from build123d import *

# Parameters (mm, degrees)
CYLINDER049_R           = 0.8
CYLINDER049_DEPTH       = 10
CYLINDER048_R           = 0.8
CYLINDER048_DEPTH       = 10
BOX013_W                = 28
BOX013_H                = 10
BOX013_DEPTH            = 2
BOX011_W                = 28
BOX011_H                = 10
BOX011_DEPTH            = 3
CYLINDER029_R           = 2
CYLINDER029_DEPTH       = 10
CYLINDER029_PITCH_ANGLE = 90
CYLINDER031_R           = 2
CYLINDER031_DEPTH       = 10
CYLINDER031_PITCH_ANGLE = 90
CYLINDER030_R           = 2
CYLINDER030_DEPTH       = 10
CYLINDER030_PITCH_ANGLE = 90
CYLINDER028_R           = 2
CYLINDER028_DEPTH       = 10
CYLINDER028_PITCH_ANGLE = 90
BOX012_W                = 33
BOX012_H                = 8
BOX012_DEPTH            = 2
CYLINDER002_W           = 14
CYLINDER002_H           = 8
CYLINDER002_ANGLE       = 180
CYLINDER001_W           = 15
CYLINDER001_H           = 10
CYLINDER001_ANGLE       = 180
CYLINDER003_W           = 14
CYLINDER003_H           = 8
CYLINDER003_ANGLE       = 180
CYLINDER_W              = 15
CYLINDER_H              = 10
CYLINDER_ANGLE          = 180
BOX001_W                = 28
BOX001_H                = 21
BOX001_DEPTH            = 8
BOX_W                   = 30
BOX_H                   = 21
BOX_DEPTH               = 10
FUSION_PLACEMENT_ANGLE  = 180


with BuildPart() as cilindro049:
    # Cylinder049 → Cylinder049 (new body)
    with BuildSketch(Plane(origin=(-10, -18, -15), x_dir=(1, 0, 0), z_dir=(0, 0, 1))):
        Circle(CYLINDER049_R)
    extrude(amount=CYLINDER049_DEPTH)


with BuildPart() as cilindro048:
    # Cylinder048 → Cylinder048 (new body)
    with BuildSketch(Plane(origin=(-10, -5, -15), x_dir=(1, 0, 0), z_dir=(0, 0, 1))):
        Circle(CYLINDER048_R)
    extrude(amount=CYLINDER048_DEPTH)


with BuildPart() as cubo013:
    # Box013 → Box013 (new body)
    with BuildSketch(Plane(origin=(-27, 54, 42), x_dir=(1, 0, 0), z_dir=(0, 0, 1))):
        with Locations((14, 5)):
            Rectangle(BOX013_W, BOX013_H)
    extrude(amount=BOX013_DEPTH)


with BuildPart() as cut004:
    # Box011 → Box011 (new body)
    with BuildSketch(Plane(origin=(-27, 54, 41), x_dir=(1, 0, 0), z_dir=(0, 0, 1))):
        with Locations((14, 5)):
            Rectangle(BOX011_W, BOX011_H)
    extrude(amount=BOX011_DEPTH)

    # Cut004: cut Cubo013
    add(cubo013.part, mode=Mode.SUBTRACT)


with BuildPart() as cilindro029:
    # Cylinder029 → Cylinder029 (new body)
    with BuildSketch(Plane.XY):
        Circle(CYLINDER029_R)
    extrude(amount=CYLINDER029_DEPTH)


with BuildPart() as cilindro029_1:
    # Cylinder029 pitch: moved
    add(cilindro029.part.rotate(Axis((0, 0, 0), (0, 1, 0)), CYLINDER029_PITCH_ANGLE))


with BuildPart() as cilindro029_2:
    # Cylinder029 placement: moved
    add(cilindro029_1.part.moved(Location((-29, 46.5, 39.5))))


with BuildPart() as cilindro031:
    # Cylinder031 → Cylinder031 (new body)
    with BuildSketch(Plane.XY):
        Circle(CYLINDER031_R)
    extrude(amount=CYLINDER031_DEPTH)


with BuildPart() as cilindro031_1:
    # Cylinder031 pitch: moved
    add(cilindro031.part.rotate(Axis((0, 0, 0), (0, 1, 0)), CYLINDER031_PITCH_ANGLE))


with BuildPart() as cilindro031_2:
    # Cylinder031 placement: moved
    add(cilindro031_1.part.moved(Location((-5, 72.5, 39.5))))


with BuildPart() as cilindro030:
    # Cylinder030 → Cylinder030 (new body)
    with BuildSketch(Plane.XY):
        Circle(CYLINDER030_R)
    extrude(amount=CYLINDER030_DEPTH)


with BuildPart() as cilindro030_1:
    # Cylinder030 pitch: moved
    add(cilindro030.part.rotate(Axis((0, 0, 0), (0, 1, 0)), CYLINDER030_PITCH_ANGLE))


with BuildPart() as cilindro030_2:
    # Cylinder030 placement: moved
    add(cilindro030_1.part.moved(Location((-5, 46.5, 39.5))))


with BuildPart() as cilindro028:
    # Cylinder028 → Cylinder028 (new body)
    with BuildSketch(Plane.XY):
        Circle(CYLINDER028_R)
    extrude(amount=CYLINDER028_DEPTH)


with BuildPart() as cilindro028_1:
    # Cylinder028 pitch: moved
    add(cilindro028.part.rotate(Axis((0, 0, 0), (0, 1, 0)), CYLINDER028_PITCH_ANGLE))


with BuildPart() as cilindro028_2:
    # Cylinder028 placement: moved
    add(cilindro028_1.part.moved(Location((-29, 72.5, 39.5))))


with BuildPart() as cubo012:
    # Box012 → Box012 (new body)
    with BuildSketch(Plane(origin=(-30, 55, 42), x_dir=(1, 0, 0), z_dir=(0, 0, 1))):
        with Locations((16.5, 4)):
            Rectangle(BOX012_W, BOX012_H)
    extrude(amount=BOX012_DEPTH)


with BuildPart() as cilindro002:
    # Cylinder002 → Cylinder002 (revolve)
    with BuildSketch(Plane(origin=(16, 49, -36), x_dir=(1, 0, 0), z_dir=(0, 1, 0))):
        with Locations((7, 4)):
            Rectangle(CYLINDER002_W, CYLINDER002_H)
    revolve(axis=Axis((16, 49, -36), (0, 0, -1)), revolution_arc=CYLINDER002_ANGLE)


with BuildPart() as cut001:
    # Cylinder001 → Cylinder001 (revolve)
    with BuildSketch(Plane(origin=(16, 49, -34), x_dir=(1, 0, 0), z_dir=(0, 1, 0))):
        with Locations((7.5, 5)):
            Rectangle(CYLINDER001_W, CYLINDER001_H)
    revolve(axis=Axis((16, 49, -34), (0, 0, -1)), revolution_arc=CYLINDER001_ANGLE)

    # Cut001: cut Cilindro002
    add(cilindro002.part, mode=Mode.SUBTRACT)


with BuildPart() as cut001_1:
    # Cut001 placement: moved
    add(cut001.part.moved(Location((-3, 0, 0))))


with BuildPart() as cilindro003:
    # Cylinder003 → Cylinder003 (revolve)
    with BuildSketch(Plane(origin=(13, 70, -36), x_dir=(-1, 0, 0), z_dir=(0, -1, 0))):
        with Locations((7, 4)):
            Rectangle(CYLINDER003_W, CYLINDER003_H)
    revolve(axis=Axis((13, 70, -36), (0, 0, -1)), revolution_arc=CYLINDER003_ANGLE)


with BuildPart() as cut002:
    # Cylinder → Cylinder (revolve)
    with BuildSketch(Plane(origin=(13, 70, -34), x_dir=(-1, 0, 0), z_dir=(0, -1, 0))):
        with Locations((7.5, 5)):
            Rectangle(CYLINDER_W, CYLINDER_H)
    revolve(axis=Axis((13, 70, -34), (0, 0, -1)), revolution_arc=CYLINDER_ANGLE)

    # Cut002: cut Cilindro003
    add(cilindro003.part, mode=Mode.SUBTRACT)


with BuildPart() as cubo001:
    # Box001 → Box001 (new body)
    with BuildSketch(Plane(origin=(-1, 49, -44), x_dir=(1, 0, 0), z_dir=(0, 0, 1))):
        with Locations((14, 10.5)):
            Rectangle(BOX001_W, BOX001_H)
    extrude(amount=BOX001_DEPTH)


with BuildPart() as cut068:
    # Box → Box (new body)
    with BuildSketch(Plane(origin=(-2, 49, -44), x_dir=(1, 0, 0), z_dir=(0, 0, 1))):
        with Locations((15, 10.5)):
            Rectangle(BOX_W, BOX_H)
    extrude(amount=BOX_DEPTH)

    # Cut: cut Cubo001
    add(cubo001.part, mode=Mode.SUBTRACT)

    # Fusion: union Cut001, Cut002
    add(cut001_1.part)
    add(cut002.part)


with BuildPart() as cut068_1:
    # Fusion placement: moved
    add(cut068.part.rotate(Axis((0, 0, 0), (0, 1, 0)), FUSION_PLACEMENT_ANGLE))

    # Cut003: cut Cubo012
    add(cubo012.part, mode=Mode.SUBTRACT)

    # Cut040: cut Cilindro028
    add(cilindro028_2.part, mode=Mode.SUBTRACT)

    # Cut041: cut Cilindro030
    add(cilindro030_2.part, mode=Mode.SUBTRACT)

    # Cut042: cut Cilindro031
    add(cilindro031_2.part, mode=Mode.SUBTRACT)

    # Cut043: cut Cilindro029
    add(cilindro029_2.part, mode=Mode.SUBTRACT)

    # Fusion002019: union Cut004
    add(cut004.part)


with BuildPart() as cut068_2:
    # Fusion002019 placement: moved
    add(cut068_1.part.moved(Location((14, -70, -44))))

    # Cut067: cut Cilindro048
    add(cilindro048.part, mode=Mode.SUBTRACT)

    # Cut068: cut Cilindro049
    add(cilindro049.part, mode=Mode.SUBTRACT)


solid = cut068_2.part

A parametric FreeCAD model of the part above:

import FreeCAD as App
import Part
import Sketcher
Q = App.Units.Quantity


def add_polygon(sketch, points):
    """Adds a closed chain of lines whose ends are joined by coincident constraints."""
    first, n = sketch.GeometryCount, len(points)
    for a, b in zip(points, points[1:] + points[:1]):
        sketch.addGeometry(Part.LineSegment(App.Vector(*a, 0), App.Vector(*b, 0)), False)
    for i in range(n):
        sketch.addConstraint(Sketcher.Constraint("Coincident", first + i, 2, first + (i + 1) % n, 1))

doc = App.newDocument("Part")
params = doc.addObject("Spreadsheet::Sheet", "Params")
for row, (alias, value) in enumerate([
    ("sketch1_diameter", "1.6 mm"),
    ("pad1_length", "10 mm"),
    ("sketch2_diameter", "1.6 mm"),
    ("pad2_length", "10 mm"),
    ("sketch3_width", "28 mm"),
    ("sketch3_height", "10 mm"),
    ("pad3_length", "2 mm"),
    ("sketch4_width", "28 mm"),
    ("sketch4_height", "10 mm"),
    ("pad4_length", "3 mm"),
    ("sketch5_diameter", "4 mm"),
    ("pad5_length", "10 mm"),
    ("sketch6_diameter", "4 mm"),
    ("pad6_length", "10 mm"),
    ("sketch7_diameter", "4 mm"),
    ("pad7_length", "10 mm"),
    ("sketch8_diameter", "4 mm"),
    ("pad8_length", "10 mm"),
    ("sketch9_width", "33 mm"),
    ("sketch9_height", "8 mm"),
    ("pad9_length", "2 mm"),
    ("sketch10_width", "14 mm"),
    ("sketch10_height", "8 mm"),
    ("revolution_angle", "180 deg"),
    ("sketch11_width", "15 mm"),
    ("sketch11_height", "10 mm"),
    ("revolution2_angle", "180 deg"),
    ("sketch12_width", "14 mm"),
    ("sketch12_height", "8 mm"),
    ("revolution3_angle", "180 deg"),
    ("sketch13_width", "15 mm"),
    ("sketch13_height", "10 mm"),
    ("revolution4_angle", "180 deg"),
    ("sketch14_width", "28 mm"),
    ("sketch14_height", "21 mm"),
    ("pad10_length", "8 mm"),
    ("sketch15_width", "30 mm"),
    ("sketch15_height", "21 mm"),
    ("pad11_length", "10 mm"),
], start=1):
    params.set(f"A{row}", alias)
    params.set(f"B{row}", "=" + value)
    params.setAlias(f"B{row}", alias)

body = doc.addObject("PartDesign::Body", "Body")

# Sketch on XY plane
sketch1 = doc.addObject("Sketcher::SketchObject", "Sketch")
body.addObject(sketch1)
sketch1.AttachmentSupport = (doc.XY_Plane, [""])
sketch1.MapMode = "FlatFace"
sketch1.AttachmentOffset = App.Placement(App.Vector(0, 0, -15), App.Rotation())
sketch1.addGeometry(Part.Circle(App.Vector(-10, -18, 0), App.Vector(0, 0, 1), 0.8), False)
sketch1.addConstraint([
    Sketcher.Constraint("Diameter", 0, Q("1.6 mm")),
    Sketcher.Constraint("DistanceX", 0, 3, -1, 1, Q("10 mm")),
    Sketcher.Constraint("DistanceY", 0, 3, -1, 1, Q("18 mm")),
])
sketch1.setExpression("Constraints[0]", "Params.sketch1_diameter")
pad1 = doc.addObject("PartDesign::Pad", "Pad")
body.addObject(pad1)
pad1.Profile = sketch1
pad1.setExpression("Length", "Params.pad1_length")
body2 = doc.addObject("PartDesign::Body", "Body001")

# Sketch on XY plane
sketch2 = doc.addObject("Sketcher::SketchObject", "Sketch001")
body2.addObject(sketch2)
sketch2.AttachmentSupport = (doc.getObject("XY_Plane001"), [""])
sketch2.MapMode = "FlatFace"
sketch2.AttachmentOffset = App.Placement(App.Vector(0, 0, -15), App.Rotation())
sketch2.addGeometry(Part.Circle(App.Vector(-10, -5, 0), App.Vector(0, 0, 1), 0.8), False)
sketch2.addConstraint([
    Sketcher.Constraint("Diameter", 0, Q("1.6 mm")),
    Sketcher.Constraint("DistanceX", 0, 3, -1, 1, Q("10 mm")),
    Sketcher.Constraint("DistanceY", 0, 3, -1, 1, Q("5 mm")),
])
sketch2.setExpression("Constraints[0]", "Params.sketch2_diameter")
pad2 = doc.addObject("PartDesign::Pad", "Pad001")
body2.addObject(pad2)
pad2.Profile = sketch2
pad2.setExpression("Length", "Params.pad2_length")
body3 = doc.addObject("PartDesign::Body", "Body002")

# Sketch on XY plane
sketch3 = doc.addObject("Sketcher::SketchObject", "Sketch002")
body3.addObject(sketch3)
sketch3.AttachmentSupport = (doc.getObject("XY_Plane002"), [""])
sketch3.MapMode = "FlatFace"
sketch3.AttachmentOffset = App.Placement(App.Vector(0, 0, 42), App.Rotation())
add_polygon(sketch3, [(-27, 64), (-27, 54), (1, 54), (1, 64)])  # lines 0-3
sketch3.addConstraint([
    Sketcher.Constraint("Vertical", 0),
    Sketcher.Constraint("Horizontal", 1),
    Sketcher.Constraint("Vertical", 2),
    Sketcher.Constraint("Horizontal", 3),
    Sketcher.Constraint("DistanceX", 1, 1, 1, 2, Q("28 mm")),
    Sketcher.Constraint("DistanceY", 0, 2, 0, 1, Q("10 mm")),
    Sketcher.Constraint("DistanceX", 0, 2, -1, 1, Q("27 mm")),
    Sketcher.Constraint("DistanceY", -1, 1, 0, 2, Q("54 mm")),
])
sketch3.setExpression("Constraints[8]", "Params.sketch3_width")
sketch3.setExpression("Constraints[9]", "Params.sketch3_height")
pad3 = doc.addObject("PartDesign::Pad", "Pad002")
body3.addObject(pad3)
pad3.Profile = sketch3
pad3.setExpression("Length", "Params.pad3_length")
body4 = doc.addObject("PartDesign::Body", "Body003")

# Sketch on XY plane
sketch4 = doc.addObject("Sketcher::SketchObject", "Sketch003")
body4.addObject(sketch4)
sketch4.AttachmentSupport = (doc.getObject("XY_Plane003"), [""])
sketch4.MapMode = "FlatFace"
sketch4.AttachmentOffset = App.Placement(App.Vector(0, 0, 41), App.Rotation())
add_polygon(sketch4, [(-27, 64), (-27, 54), (1, 54), (1, 64)])  # lines 0-3
sketch4.addConstraint([
    Sketcher.Constraint("Vertical", 0),
    Sketcher.Constraint("Horizontal", 1),
    Sketcher.Constraint("Vertical", 2),
    Sketcher.Constraint("Horizontal", 3),
    Sketcher.Constraint("DistanceX", 1, 1, 1, 2, Q("28 mm")),
    Sketcher.Constraint("DistanceY", 0, 2, 0, 1, Q("10 mm")),
    Sketcher.Constraint("DistanceX", 0, 2, -1, 1, Q("27 mm")),
    Sketcher.Constraint("DistanceY", -1, 1, 0, 2, Q("54 mm")),
])
sketch4.setExpression("Constraints[8]", "Params.sketch4_width")
sketch4.setExpression("Constraints[9]", "Params.sketch4_height")
pad4 = doc.addObject("PartDesign::Pad", "Pad003")
body4.addObject(pad4)
pad4.Profile = sketch4
pad4.setExpression("Length", "Params.pad4_length")
doc.recompute()

boolean = doc.addObject("PartDesign::Boolean", "Boolean")
body4.addObject(boolean)
boolean.Type = "Cut"
boolean.addObjects([body3])
body5 = doc.addObject("PartDesign::Body", "Body004")

# Sketch on XY plane
sketch5 = doc.addObject("Sketcher::SketchObject", "Sketch004")
body5.addObject(sketch5)
sketch5.AttachmentSupport = (doc.getObject("XY_Plane004"), [""])
sketch5.MapMode = "FlatFace"
sketch5.addGeometry(Part.Circle(App.Vector(0, 0, 0), App.Vector(0, 0, 1), 2), False)
sketch5.addConstraint([
    Sketcher.Constraint("Coincident", 0, 3, -1, 1),
    Sketcher.Constraint("Diameter", 0, Q("4 mm")),
])
sketch5.setExpression("Constraints[1]", "Params.sketch5_diameter")
pad5 = doc.addObject("PartDesign::Pad", "Pad004")
body5.addObject(pad5)
pad5.Profile = sketch5
pad5.setExpression("Length", "Params.pad5_length")
body6 = doc.addObject("PartDesign::Body", "Body005")
doc.recompute()

body5.Placement = App.Placement(App.Vector(0, 0, 0), App.Rotation(App.Vector(0, 1, 0), 90))
boolean2 = doc.addObject("PartDesign::Boolean", "Boolean001")
body6.addObject(boolean2)
boolean2.Type = "Fuse"
boolean2.addObjects([body5])
body7 = doc.addObject("PartDesign::Body", "Body006")
doc.recompute()

body6.Placement = App.Placement(App.Vector(-29, 46.5, 39.5), App.Rotation(App.Vector(0, 0, 1), 0))
boolean3 = doc.addObject("PartDesign::Boolean", "Boolean002")
body7.addObject(boolean3)
boolean3.Type = "Fuse"
boolean3.addObjects([body6])
body8 = doc.addObject("PartDesign::Body", "Body007")

# Sketch on XY plane
sketch6 = doc.addObject("Sketcher::SketchObject", "Sketch005")
body8.addObject(sketch6)
sketch6.AttachmentSupport = (doc.getObject("XY_Plane007"), [""])
sketch6.MapMode = "FlatFace"
sketch6.addGeometry(Part.Circle(App.Vector(0, 0, 0), App.Vector(0, 0, 1), 2), False)
sketch6.addConstraint([
    Sketcher.Constraint("Coincident", 0, 3, -1, 1),
    Sketcher.Constraint("Diameter", 0, Q("4 mm")),
])
sketch6.setExpression("Constraints[1]", "Params.sketch6_diameter")
pad6 = doc.addObject("PartDesign::Pad", "Pad005")
body8.addObject(pad6)
pad6.Profile = sketch6
pad6.setExpression("Length", "Params.pad6_length")
body9 = doc.addObject("PartDesign::Body", "Body008")
doc.recompute()

body8.Placement = App.Placement(App.Vector(0, 0, 0), App.Rotation(App.Vector(0, 1, 0), 90))
boolean4 = doc.addObject("PartDesign::Boolean", "Boolean003")
body9.addObject(boolean4)
boolean4.Type = "Fuse"
boolean4.addObjects([body8])
body10 = doc.addObject("PartDesign::Body", "Body009")
doc.recompute()

body9.Placement = App.Placement(App.Vector(-5, 72.5, 39.5), App.Rotation(App.Vector(0, 0, 1), 0))
boolean5 = doc.addObject("PartDesign::Boolean", "Boolean004")
body10.addObject(boolean5)
boolean5.Type = "Fuse"
boolean5.addObjects([body9])
body11 = doc.addObject("PartDesign::Body", "Body010")

# Sketch on XY plane
sketch7 = doc.addObject("Sketcher::SketchObject", "Sketch006")
body11.addObject(sketch7)
sketch7.AttachmentSupport = (doc.getObject("XY_Plane010"), [""])
sketch7.MapMode = "FlatFace"
sketch7.addGeometry(Part.Circle(App.Vector(0, 0, 0), App.Vector(0, 0, 1), 2), False)
sketch7.addConstraint([
    Sketcher.Constraint("Coincident", 0, 3, -1, 1),
    Sketcher.Constraint("Diameter", 0, Q("4 mm")),
])
sketch7.setExpression("Constraints[1]", "Params.sketch7_diameter")
pad7 = doc.addObject("PartDesign::Pad", "Pad006")
body11.addObject(pad7)
pad7.Profile = sketch7
pad7.setExpression("Length", "Params.pad7_length")
body12 = doc.addObject("PartDesign::Body", "Body011")
doc.recompute()

body11.Placement = App.Placement(App.Vector(0, 0, 0), App.Rotation(App.Vector(0, 1, 0), 90))
boolean6 = doc.addObject("PartDesign::Boolean", "Boolean005")
body12.addObject(boolean6)
boolean6.Type = "Fuse"
boolean6.addObjects([body11])
body13 = doc.addObject("PartDesign::Body", "Body012")
doc.recompute()

body12.Placement = App.Placement(App.Vector(-5, 46.5, 39.5), App.Rotation(App.Vector(0, 0, 1), 0))
boolean7 = doc.addObject("PartDesign::Boolean", "Boolean006")
body13.addObject(boolean7)
boolean7.Type = "Fuse"
boolean7.addObjects([body12])
body14 = doc.addObject("PartDesign::Body", "Body013")

# Sketch on XY plane
sketch8 = doc.addObject("Sketcher::SketchObject", "Sketch007")
body14.addObject(sketch8)
sketch8.AttachmentSupport = (doc.getObject("XY_Plane013"), [""])
sketch8.MapMode = "FlatFace"
sketch8.addGeometry(Part.Circle(App.Vector(0, 0, 0), App.Vector(0, 0, 1), 2), False)
sketch8.addConstraint([
    Sketcher.Constraint("Coincident", 0, 3, -1, 1),
    Sketcher.Constraint("Diameter", 0, Q("4 mm")),
])
sketch8.setExpression("Constraints[1]", "Params.sketch8_diameter")
pad8 = doc.addObject("PartDesign::Pad", "Pad007")
body14.addObject(pad8)
pad8.Profile = sketch8
pad8.setExpression("Length", "Params.pad8_length")
body15 = doc.addObject("PartDesign::Body", "Body014")
doc.recompute()

body14.Placement = App.Placement(App.Vector(0, 0, 0), App.Rotation(App.Vector(0, 1, 0), 90))
boolean8 = doc.addObject("PartDesign::Boolean", "Boolean007")
body15.addObject(boolean8)
boolean8.Type = "Fuse"
boolean8.addObjects([body14])
body16 = doc.addObject("PartDesign::Body", "Body015")
doc.recompute()

body15.Placement = App.Placement(App.Vector(-29, 72.5, 39.5), App.Rotation(App.Vector(0, 0, 1), 0))
boolean9 = doc.addObject("PartDesign::Boolean", "Boolean008")
body16.addObject(boolean9)
boolean9.Type = "Fuse"
boolean9.addObjects([body15])
body17 = doc.addObject("PartDesign::Body", "Body016")

# Sketch on XY plane
sketch9 = doc.addObject("Sketcher::SketchObject", "Sketch008")
body17.addObject(sketch9)
sketch9.AttachmentSupport = (doc.getObject("XY_Plane016"), [""])
sketch9.MapMode = "FlatFace"
sketch9.AttachmentOffset = App.Placement(App.Vector(0, 0, 42), App.Rotation())
add_polygon(sketch9, [(-30, 63), (-30, 55), (3, 55), (3, 63)])  # lines 0-3
sketch9.addConstraint([
    Sketcher.Constraint("Vertical", 0),
    Sketcher.Constraint("Horizontal", 1),
    Sketcher.Constraint("Vertical", 2),
    Sketcher.Constraint("Horizontal", 3),
    Sketcher.Constraint("DistanceX", 1, 1, 1, 2, Q("33 mm")),
    Sketcher.Constraint("DistanceY", 0, 2, 0, 1, Q("8 mm")),
    Sketcher.Constraint("DistanceX", 0, 2, -1, 1, Q("30 mm")),
    Sketcher.Constraint("DistanceY", -1, 1, 0, 2, Q("55 mm")),
])
sketch9.setExpression("Constraints[8]", "Params.sketch9_width")
sketch9.setExpression("Constraints[9]", "Params.sketch9_height")
pad9 = doc.addObject("PartDesign::Pad", "Pad008")
body17.addObject(pad9)
pad9.Profile = sketch9
pad9.setExpression("Length", "Params.pad9_length")
body18 = doc.addObject("PartDesign::Body", "Body017")

# Sketch on XZ plane
sketch10 = doc.addObject("Sketcher::SketchObject", "Sketch009")
body18.addObject(sketch10)
sketch10.AttachmentSupport = (doc.getObject("XZ_Plane017"), [""])
sketch10.MapMode = "FlatFace"
sketch10.AttachmentOffset = App.Placement(App.Vector(0, 0, -49), App.Rotation())
add_polygon(sketch10, [(16, -44), (16, -36), (30, -36), (30, -44)])  # lines 0-3
sketch10.addGeometry(Part.LineSegment(App.Vector(16, -36, 0), App.Vector(16, -44, 0)), True)  # axis
sketch10.addConstraint([
    Sketcher.Constraint("Vertical", 0),
    Sketcher.Constraint("Horizontal", 1),
    Sketcher.Constraint("Vertical", 2),
    Sketcher.Constraint("Horizontal", 3),
    Sketcher.Constraint("Vertical", 4),
    Sketcher.Constraint("Coincident", 4, 1, 0, 2),
    Sketcher.Constraint("Horizontal", 2, 2, 4, 2),
    Sketcher.Constraint("DistanceX", 1, 1, 1, 2, Q("14 mm")),
    Sketcher.Constraint("DistanceY", 0, 1, 0, 2, Q("8 mm")),
    Sketcher.Constraint("DistanceX", -1, 1, 0, 2, Q("16 mm")),
    Sketcher.Constraint("DistanceY", 0, 2, -1, 1, Q("36 mm")),
])
sketch10.setExpression("Constraints[11]", "Params.sketch10_width")
sketch10.setExpression("Constraints[12]", "Params.sketch10_height")
revolution = doc.addObject("PartDesign::Revolution", "Revolution")
body18.addObject(revolution)
revolution.Profile = sketch10
revolution.ReferenceAxis = (sketch10, ["Axis0"])
revolution.setExpression("Angle", "Params.revolution_angle")
body19 = doc.addObject("PartDesign::Body", "Body018")

# Sketch on XZ plane
sketch11 = doc.addObject("Sketcher::SketchObject", "Sketch010")
body19.addObject(sketch11)
sketch11.AttachmentSupport = (doc.getObject("XZ_Plane018"), [""])
sketch11.MapMode = "FlatFace"
sketch11.AttachmentOffset = App.Placement(App.Vector(0, 0, -49), App.Rotation())
add_polygon(sketch11, [(16, -44), (16, -34), (31, -34), (31, -44)])  # lines 0-3
sketch11.addGeometry(Part.LineSegment(App.Vector(16, -34, 0), App.Vector(16, -44, 0)), True)  # axis
sketch11.addConstraint([
    Sketcher.Constraint("Vertical", 0),
    Sketcher.Constraint("Horizontal", 1),
    Sketcher.Constraint("Vertical", 2),
    Sketcher.Constraint("Horizontal", 3),
    Sketcher.Constraint("Vertical", 4),
    Sketcher.Constraint("Coincident", 4, 1, 0, 2),
    Sketcher.Constraint("Horizontal", 2, 2, 4, 2),
    Sketcher.Constraint("DistanceX", 1, 1, 1, 2, Q("15 mm")),
    Sketcher.Constraint("DistanceY", 0, 1, 0, 2, Q("10 mm")),
    Sketcher.Constraint("DistanceX", -1, 1, 0, 2, Q("16 mm")),
    Sketcher.Constraint("DistanceY", 0, 2, -1, 1, Q("34 mm")),
])
sketch11.setExpression("Constraints[11]", "Params.sketch11_width")
sketch11.setExpression("Constraints[12]", "Params.sketch11_height")
revolution2 = doc.addObject("PartDesign::Revolution", "Revolution001")
body19.addObject(revolution2)
revolution2.Profile = sketch11
revolution2.ReferenceAxis = (sketch11, ["Axis0"])
revolution2.setExpression("Angle", "Params.revolution2_angle")
doc.recompute()

boolean10 = doc.addObject("PartDesign::Boolean", "Boolean009")
body19.addObject(boolean10)
boolean10.Type = "Cut"
boolean10.addObjects([body18])
body20 = doc.addObject("PartDesign::Body", "Body019")
doc.recompute()

body19.Placement = App.Placement(App.Vector(-3, 0, 0), App.Rotation(App.Vector(0, 0, 1), 0))
boolean11 = doc.addObject("PartDesign::Boolean", "Boolean010")
body20.addObject(boolean11)
boolean11.Type = "Fuse"
boolean11.addObjects([body19])
body21 = doc.addObject("PartDesign::Body", "Body020")

# Sketch on XZ plane
sketch12 = doc.addObject("Sketcher::SketchObject", "Sketch011")
body21.addObject(sketch12)
sketch12.AttachmentSupport = (doc.getObject("XZ_Plane020"), [""])
sketch12.MapMode = "FlatFace"
sketch12.AttachmentOffset = App.Placement(App.Vector(0, 0, -70), App.Rotation())
add_polygon(sketch12, [(13, -44), (13, -36), (-1, -36), (-1, -44)])  # lines 0-3
sketch12.addGeometry(Part.LineSegment(App.Vector(13, -36, 0), App.Vector(13, -44, 0)), True)  # axis
sketch12.addConstraint([
    Sketcher.Constraint("Vertical", 0),
    Sketcher.Constraint("Horizontal", 1),
    Sketcher.Constraint("Vertical", 2),
    Sketcher.Constraint("Horizontal", 3),
    Sketcher.Constraint("Vertical", 4),
    Sketcher.Constraint("Coincident", 4, 1, 0, 2),
    Sketcher.Constraint("Horizontal", 2, 2, 4, 2),
    Sketcher.Constraint("DistanceX", 1, 2, 1, 1, Q("14 mm")),
    Sketcher.Constraint("DistanceY", 0, 1, 0, 2, Q("8 mm")),
    Sketcher.Constraint("DistanceX", -1, 1, 0, 2, Q("13 mm")),
    Sketcher.Constraint("DistanceY", 0, 2, -1, 1, Q("36 mm")),
])
sketch12.setExpression("Constraints[11]", "Params.sketch12_width")
sketch12.setExpression("Constraints[12]", "Params.sketch12_height")
revolution3 = doc.addObject("PartDesign::Revolution", "Revolution002")
body21.addObject(revolution3)
revolution3.Profile = sketch12
revolution3.ReferenceAxis = (sketch12, ["Axis0"])
revolution3.setExpression("Angle", "Params.revolution3_angle")
body22 = doc.addObject("PartDesign::Body", "Body021")

# Sketch on XZ plane
sketch13 = doc.addObject("Sketcher::SketchObject", "Sketch012")
body22.addObject(sketch13)
sketch13.AttachmentSupport = (doc.getObject("XZ_Plane021"), [""])
sketch13.MapMode = "FlatFace"
sketch13.AttachmentOffset = App.Placement(App.Vector(0, 0, -70), App.Rotation())
add_polygon(sketch13, [(13, -44), (13, -34), (-2, -34), (-2, -44)])  # lines 0-3
sketch13.addGeometry(Part.LineSegment(App.Vector(13, -34, 0), App.Vector(13, -44, 0)), True)  # axis
sketch13.addConstraint([
    Sketcher.Constraint("Vertical", 0),
    Sketcher.Constraint("Horizontal", 1),
    Sketcher.Constraint("Vertical", 2),
    Sketcher.Constraint("Horizontal", 3),
    Sketcher.Constraint("Vertical", 4),
    Sketcher.Constraint("Coincident", 4, 1, 0, 2),
    Sketcher.Constraint("Horizontal", 2, 2, 4, 2),
    Sketcher.Constraint("DistanceX", 1, 2, 1, 1, Q("15 mm")),
    Sketcher.Constraint("DistanceY", 0, 1, 0, 2, Q("10 mm")),
    Sketcher.Constraint("DistanceX", -1, 1, 0, 2, Q("13 mm")),
    Sketcher.Constraint("DistanceY", 0, 2, -1, 1, Q("34 mm")),
])
sketch13.setExpression("Constraints[11]", "Params.sketch13_width")
sketch13.setExpression("Constraints[12]", "Params.sketch13_height")
revolution4 = doc.addObject("PartDesign::Revolution", "Revolution003")
body22.addObject(revolution4)
revolution4.Profile = sketch13
revolution4.ReferenceAxis = (sketch13, ["Axis0"])
revolution4.setExpression("Angle", "Params.revolution4_angle")
doc.recompute()

boolean12 = doc.addObject("PartDesign::Boolean", "Boolean011")
body22.addObject(boolean12)
boolean12.Type = "Cut"
boolean12.addObjects([body21])
body23 = doc.addObject("PartDesign::Body", "Body022")

# Sketch on XY plane
sketch14 = doc.addObject("Sketcher::SketchObject", "Sketch013")
body23.addObject(sketch14)
sketch14.AttachmentSupport = (doc.getObject("XY_Plane022"), [""])
sketch14.MapMode = "FlatFace"
sketch14.AttachmentOffset = App.Placement(App.Vector(0, 0, -44), App.Rotation())
add_polygon(sketch14, [(-1, 70), (-1, 49), (27, 49), (27, 70)])  # lines 0-3
sketch14.addConstraint([
    Sketcher.Constraint("Vertical", 0),
    Sketcher.Constraint("Horizontal", 1),
    Sketcher.Constraint("Vertical", 2),
    Sketcher.Constraint("Horizontal", 3),
    Sketcher.Constraint("DistanceX", 1, 1, 1, 2, Q("28 mm")),
    Sketcher.Constraint("DistanceY", 0, 2, 0, 1, Q("21 mm")),
    Sketcher.Constraint("DistanceX", 0, 2, -1, 1, Q("1 mm")),
    Sketcher.Constraint("DistanceY", -1, 1, 0, 2, Q("49 mm")),
])
sketch14.setExpression("Constraints[8]", "Params.sketch14_width")
sketch14.setExpression("Constraints[9]", "Params.sketch14_height")
pad10 = doc.addObject("PartDesign::Pad", "Pad009")
body23.addObject(pad10)
pad10.Profile = sketch14
pad10.setExpression("Length", "Params.pad10_length")
body24 = doc.addObject("PartDesign::Body", "Body023")

# Sketch on XY plane
sketch15 = doc.addObject("Sketcher::SketchObject", "Sketch014")
body24.addObject(sketch15)
sketch15.AttachmentSupport = (doc.getObject("XY_Plane023"), [""])
sketch15.MapMode = "FlatFace"
sketch15.AttachmentOffset = App.Placement(App.Vector(0, 0, -44), App.Rotation())
add_polygon(sketch15, [(-2, 70), (-2, 49), (28, 49), (28, 70)])  # lines 0-3
sketch15.addConstraint([
    Sketcher.Constraint("Vertical", 0),
    Sketcher.Constraint("Horizontal", 1),
    Sketcher.Constraint("Vertical", 2),
    Sketcher.Constraint("Horizontal", 3),
    Sketcher.Constraint("DistanceX", 1, 1, 1, 2, Q("30 mm")),
    Sketcher.Constraint("DistanceY", 0, 2, 0, 1, Q("21 mm")),
    Sketcher.Constraint("DistanceX", 0, 2, -1, 1, Q("2 mm")),
    Sketcher.Constraint("DistanceY", -1, 1, 0, 2, Q("49 mm")),
])
sketch15.setExpression("Constraints[8]", "Params.sketch15_width")
sketch15.setExpression("Constraints[9]", "Params.sketch15_height")
pad11 = doc.addObject("PartDesign::Pad", "Pad010")
body24.addObject(pad11)
pad11.Profile = sketch15
pad11.setExpression("Length", "Params.pad11_length")
doc.recompute()

boolean13 = doc.addObject("PartDesign::Boolean", "Boolean012")
body24.addObject(boolean13)
boolean13.Type = "Cut"
boolean13.addObjects([body23])
doc.recompute()

boolean14 = doc.addObject("PartDesign::Boolean", "Boolean013")
body24.addObject(boolean14)
boolean14.Type = "Fuse"
boolean14.addObjects([body20])
doc.recompute()

boolean15 = doc.addObject("PartDesign::Boolean", "Boolean014")
body24.addObject(boolean15)
boolean15.Type = "Fuse"
boolean15.addObjects([body22])
body25 = doc.addObject("PartDesign::Body", "Body024")
doc.recompute()

body24.Placement = App.Placement(App.Vector(0, 0, 0), App.Rotation(App.Vector(0, 1, 0), 180))
boolean16 = doc.addObject("PartDesign::Boolean", "Boolean015")
body25.addObject(boolean16)
boolean16.Type = "Fuse"
boolean16.addObjects([body24])
doc.recompute()

boolean17 = doc.addObject("PartDesign::Boolean", "Boolean016")
body25.addObject(boolean17)
boolean17.Type = "Cut"
boolean17.addObjects([body17])
doc.recompute()

boolean18 = doc.addObject("PartDesign::Boolean", "Boolean017")
body25.addObject(boolean18)
boolean18.Type = "Cut"
boolean18.addObjects([body16])
doc.recompute()

boolean19 = doc.addObject("PartDesign::Boolean", "Boolean018")
body25.addObject(boolean19)
boolean19.Type = "Cut"
boolean19.addObjects([body13])
doc.recompute()

boolean20 = doc.addObject("PartDesign::Boolean", "Boolean019")
body25.addObject(boolean20)
boolean20.Type = "Cut"
boolean20.addObjects([body10])
doc.recompute()

boolean21 = doc.addObject("PartDesign::Boolean", "Boolean020")
body25.addObject(boolean21)
boolean21.Type = "Cut"
boolean21.addObjects([body7])
doc.recompute()

boolean22 = doc.addObject("PartDesign::Boolean", "Boolean021")
body25.addObject(boolean22)
boolean22.Type = "Fuse"
boolean22.addObjects([body4])
body26 = doc.addObject("PartDesign::Body", "Body025")
doc.recompute()

body25.Placement = App.Placement(App.Vector(14, -70, -44), App.Rotation(App.Vector(0, 0, 1), 0))
boolean23 = doc.addObject("PartDesign::Boolean", "Boolean022")
body26.addObject(boolean23)
boolean23.Type = "Fuse"
boolean23.addObjects([body25])
doc.recompute()

boolean24 = doc.addObject("PartDesign::Boolean", "Boolean023")
body26.addObject(boolean24)
boolean24.Type = "Cut"
boolean24.addObjects([body2])
doc.recompute()

boolean25 = doc.addObject("PartDesign::Boolean", "Boolean024")
body26.addObject(boolean25)
boolean25.Type = "Cut"
boolean25.addObjects([body])

doc.recompute()
